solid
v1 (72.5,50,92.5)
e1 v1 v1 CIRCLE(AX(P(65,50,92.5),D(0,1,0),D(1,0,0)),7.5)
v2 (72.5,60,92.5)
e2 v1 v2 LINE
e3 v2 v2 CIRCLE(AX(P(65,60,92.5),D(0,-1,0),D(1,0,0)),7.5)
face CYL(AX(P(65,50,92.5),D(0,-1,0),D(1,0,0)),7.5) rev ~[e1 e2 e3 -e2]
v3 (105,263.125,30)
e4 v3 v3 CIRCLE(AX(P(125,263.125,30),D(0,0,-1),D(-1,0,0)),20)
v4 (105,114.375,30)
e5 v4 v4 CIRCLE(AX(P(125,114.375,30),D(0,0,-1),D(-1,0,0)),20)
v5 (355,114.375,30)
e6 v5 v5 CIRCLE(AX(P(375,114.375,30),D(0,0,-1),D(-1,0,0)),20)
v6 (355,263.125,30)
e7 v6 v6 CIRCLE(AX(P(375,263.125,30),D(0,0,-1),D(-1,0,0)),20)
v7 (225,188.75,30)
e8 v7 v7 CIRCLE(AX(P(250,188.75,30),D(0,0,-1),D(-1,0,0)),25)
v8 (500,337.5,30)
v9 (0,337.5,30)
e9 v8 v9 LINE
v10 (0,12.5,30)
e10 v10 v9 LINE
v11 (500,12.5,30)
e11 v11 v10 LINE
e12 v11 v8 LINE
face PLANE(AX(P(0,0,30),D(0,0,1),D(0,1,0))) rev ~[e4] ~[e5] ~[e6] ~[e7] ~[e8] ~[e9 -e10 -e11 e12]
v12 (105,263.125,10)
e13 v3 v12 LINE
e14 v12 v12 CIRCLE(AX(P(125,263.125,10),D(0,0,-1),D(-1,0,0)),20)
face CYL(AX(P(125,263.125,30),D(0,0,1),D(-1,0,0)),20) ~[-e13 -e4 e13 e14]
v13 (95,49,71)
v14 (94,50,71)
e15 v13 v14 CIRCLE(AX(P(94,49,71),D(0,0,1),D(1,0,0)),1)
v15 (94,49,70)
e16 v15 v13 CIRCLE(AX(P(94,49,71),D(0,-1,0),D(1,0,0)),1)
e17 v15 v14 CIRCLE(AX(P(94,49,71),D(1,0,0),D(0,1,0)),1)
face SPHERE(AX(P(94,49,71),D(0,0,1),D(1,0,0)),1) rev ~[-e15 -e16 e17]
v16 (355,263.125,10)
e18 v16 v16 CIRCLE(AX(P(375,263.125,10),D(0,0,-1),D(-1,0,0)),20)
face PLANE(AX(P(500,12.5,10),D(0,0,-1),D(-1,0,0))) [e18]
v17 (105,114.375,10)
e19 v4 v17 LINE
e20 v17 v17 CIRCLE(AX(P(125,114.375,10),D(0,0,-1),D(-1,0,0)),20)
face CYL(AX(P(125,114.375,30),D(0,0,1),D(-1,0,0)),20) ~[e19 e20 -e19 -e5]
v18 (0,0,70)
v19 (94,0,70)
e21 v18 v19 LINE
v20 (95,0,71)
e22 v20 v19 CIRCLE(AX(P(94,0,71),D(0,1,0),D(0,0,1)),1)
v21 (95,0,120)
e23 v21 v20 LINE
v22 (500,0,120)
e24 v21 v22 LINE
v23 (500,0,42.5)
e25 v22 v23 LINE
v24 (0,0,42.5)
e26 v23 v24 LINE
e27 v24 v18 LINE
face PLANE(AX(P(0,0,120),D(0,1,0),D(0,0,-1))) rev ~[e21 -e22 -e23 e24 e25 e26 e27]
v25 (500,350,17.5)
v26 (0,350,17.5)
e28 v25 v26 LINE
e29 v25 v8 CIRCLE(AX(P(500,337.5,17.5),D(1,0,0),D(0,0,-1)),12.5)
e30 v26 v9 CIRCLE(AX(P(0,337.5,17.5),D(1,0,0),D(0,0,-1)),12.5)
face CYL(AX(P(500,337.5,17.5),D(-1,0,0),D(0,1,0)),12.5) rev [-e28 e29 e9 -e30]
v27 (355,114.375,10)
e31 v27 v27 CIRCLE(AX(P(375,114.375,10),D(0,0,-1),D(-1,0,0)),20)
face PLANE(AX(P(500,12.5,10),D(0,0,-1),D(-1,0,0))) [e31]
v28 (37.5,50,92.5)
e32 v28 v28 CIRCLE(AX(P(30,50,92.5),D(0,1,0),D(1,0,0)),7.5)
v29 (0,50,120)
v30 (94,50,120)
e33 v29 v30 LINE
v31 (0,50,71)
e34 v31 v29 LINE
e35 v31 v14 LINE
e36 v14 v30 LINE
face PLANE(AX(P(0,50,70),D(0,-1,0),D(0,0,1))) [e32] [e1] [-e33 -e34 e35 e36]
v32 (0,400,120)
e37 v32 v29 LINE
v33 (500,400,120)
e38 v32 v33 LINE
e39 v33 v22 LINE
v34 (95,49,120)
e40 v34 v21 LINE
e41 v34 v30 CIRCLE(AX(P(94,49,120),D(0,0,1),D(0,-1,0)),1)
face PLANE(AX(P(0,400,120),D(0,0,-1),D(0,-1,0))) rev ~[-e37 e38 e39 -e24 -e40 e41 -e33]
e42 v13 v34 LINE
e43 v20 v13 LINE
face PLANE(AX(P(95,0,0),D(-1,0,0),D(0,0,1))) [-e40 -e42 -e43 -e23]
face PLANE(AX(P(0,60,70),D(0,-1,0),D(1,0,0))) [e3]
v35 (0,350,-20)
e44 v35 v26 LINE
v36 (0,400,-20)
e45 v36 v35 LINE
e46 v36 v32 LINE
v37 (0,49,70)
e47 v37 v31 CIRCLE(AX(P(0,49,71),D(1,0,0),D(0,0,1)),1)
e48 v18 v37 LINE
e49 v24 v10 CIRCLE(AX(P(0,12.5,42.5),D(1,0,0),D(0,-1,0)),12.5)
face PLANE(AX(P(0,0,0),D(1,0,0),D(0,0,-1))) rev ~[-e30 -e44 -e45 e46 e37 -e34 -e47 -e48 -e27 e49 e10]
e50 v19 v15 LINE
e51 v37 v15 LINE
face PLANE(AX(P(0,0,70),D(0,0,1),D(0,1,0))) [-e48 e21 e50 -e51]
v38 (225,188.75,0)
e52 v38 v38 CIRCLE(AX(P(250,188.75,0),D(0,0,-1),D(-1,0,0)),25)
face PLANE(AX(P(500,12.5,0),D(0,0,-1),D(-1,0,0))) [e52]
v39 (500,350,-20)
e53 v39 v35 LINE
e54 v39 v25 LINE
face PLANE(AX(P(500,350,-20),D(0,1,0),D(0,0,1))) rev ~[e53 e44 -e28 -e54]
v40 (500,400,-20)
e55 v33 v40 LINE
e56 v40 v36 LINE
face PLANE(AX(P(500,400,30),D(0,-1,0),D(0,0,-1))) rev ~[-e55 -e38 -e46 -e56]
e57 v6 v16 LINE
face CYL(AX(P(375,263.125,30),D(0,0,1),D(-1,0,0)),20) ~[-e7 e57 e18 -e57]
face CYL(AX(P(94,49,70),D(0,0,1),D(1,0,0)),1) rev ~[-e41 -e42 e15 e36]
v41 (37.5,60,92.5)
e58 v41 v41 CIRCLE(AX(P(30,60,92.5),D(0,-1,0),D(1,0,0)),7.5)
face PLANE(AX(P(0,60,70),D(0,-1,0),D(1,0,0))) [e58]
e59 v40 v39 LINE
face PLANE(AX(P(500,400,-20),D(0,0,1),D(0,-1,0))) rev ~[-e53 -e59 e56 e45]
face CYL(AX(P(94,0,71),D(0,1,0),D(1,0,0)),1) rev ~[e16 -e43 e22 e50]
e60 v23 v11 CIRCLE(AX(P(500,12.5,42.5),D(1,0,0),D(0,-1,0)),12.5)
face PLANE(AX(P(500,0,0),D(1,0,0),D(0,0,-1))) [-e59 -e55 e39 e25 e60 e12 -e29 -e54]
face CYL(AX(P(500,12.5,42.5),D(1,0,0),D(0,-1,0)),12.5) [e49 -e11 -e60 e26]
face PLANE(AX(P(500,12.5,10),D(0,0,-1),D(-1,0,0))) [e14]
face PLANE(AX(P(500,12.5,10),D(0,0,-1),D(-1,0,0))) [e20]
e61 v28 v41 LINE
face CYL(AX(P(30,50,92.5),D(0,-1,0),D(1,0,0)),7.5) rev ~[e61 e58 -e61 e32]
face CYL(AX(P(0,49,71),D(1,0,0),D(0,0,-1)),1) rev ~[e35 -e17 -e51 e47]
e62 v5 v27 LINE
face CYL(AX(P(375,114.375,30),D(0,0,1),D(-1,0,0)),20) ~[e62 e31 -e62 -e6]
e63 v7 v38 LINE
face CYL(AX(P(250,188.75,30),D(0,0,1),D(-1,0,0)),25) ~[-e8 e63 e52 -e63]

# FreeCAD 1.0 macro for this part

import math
import FreeCAD as App
import Part
import Sketcher
from FreeCAD import Vector
Q = App.Units.Quantity


def edges_at(feature, points):
    """Names of the edges that pass closest to the given points."""
    edges = feature.Shape.Edges
    near = lambda p: min(range(len(edges)), key=lambda i: edges[i].distToShape(Part.Vertex(*p))[0])
    return sorted({f"Edge{near(p) + 1}" for p in points})


def add_polygon(sketch, points):
    """Adds a closed chain of lines whose ends are joined by coincident constraints."""
    first, n = sketch.GeometryCount, len(points)
    for a, b in zip(points, points[1:] + points[:1]):
        sketch.addGeometry(Part.LineSegment(App.Vector(*a, 0), App.Vector(*b, 0)), False)
    for i in range(n):
        sketch.addConstraint(Sketcher.Constraint("Coincident", first + i, 2, first + (i + 1) % n, 1))

doc = App.newDocument("Part")
body = doc.addObject("PartDesign::Body", "Body")

sketch1 = body.newObject("Sketcher::SketchObject", "Sketch")
sketch1.AttachmentSupport = (doc.getObject("YZ_Plane"), [""])
sketch1.MapMode = "FlatFace"
add_polygon(sketch1, [(400, 30), (400, 120), (0, 120), (0, 30)])
sketch1.addConstraint([
    Sketcher.Constraint("Vertical", 0),
    Sketcher.Constraint("Horizontal", 1),
    Sketcher.Constraint("Vertical", 2),
    Sketcher.Constraint("Horizontal", 3),
    Sketcher.Constraint("PointOnObject", 1, 2, -2),
    Sketcher.Constraint("DistanceX", 1, 2, 1, 1, Q("400 mm")),
    Sketcher.Constraint("DistanceY", 0, 1, 0, 2, Q("90 mm")),
    Sketcher.Constraint("DistanceY", -1, 1, 0, 2, Q("120 mm")),
])
pad1 = body.newObject("PartDesign::Pad", "Pad")
pad1.Profile = sketch1
pad1.Length = 500

sketch2 = body.newObject("Sketcher::SketchObject", "Sketch001")
sketch2.AttachmentSupport = (doc.getObject("YZ_Plane"), [""])
sketch2.MapMode = "FlatFace"
sketch2.AttachmentOffset = App.Placement(Vector(0, 0, 500), App.Rotation())
sketch2.addGeometry([
    Part.ArcOfCircle(Part.Circle(Vector(12, 42, 0), Vector(0, 0, 1), 12), math.radians(180), math.radians(270)),
    Part.LineSegment(Vector(0, 42, 0), Vector(0, 30, 0)),
    Part.LineSegment(Vector(0, 30, 0), Vector(12, 30, 0)),
], False)
sketch2.addConstraint([
    Sketcher.Constraint("Tangent", 0, 1, 1, 1),
    Sketcher.Constraint("Coincident", 1, 2, 2, 1),
    Sketcher.Constraint("Tangent", 2, 2, 0, 2),
    Sketcher.Constraint("Vertical", 1),
    Sketcher.Constraint("Horizontal", 2),
    Sketcher.Constraint("PointOnObject", 0, 1, -2),
    Sketcher.Constraint("Radius", 0, Q("12.5 mm")),
    Sketcher.Constraint("DistanceY", -1, 1, 1, 2, Q("30 mm")),
])
pocket1 = body.newObject("PartDesign::Pocket", "Pocket")
pocket1.Profile = sketch2
pocket1.Length = 500

sketch3 = body.newObject("Sketcher::SketchObject", "Sketch002")
sketch3.AttachmentSupport = (doc.getObject("YZ_Plane"), [""])
sketch3.MapMode = "FlatFace"
sketch3.AttachmentOffset = App.Placement(Vector(0, 0, 500), App.Rotation())
add_polygon(sketch3, [(400, -20), (400, 30), (350, 30), (350, -20)])
sketch3.addConstraint([
    Sketcher.Constraint("Vertical", 0),
    Sketcher.Constraint("Horizontal", 1),
    Sketcher.Constraint("Vertical", 2),
    Sketcher.Constraint("Horizontal", 3),
    Sketcher.Constraint("Equal", 3, 0),
    Sketcher.Constraint("DistanceX", 1, 2, 1, 1, Q("50 mm")),
    Sketcher.Constraint("DistanceX", -1, 1, 0, 2, Q("400 mm")),
    Sketcher.Constraint("DistanceY", -1, 1, 0, 2, Q("30 mm")),
])
pad2 = body.newObject("PartDesign::Pad", "Pad001")
pad2.Profile = sketch3
pad2.Length = 500
pad2.Reversed = True
doc.recompute()

fillet = body.newObject("PartDesign::Fillet", "Fillet")
fillet.Base = (pad2, edges_at(pad2, [(250, 350, 30)]))
fillet.Radius = 12.5

sketch4 = body.newObject("Sketcher::SketchObject", "Sketch003")
sketch4.AttachmentSupport = (doc.getObject("XY_Plane"), [""])
sketch4.MapMode = "FlatFace"
sketch4.AttachmentOffset = App.Placement(Vector(0, 0, 30), App.Rotation())
sketch4.addGeometry(Part.Circle(Vector(250, 189, 0), Vector(0, 0, 1), 25), False)
sketch4.addConstraint([
    Sketcher.Constraint("Diameter", 0, Q("50 mm")),
    Sketcher.Constraint("DistanceX", -1, 1, 0, 3, Q("250 mm")),
    Sketcher.Constraint("DistanceY", -1, 1, 0, 3, Q("188.75 mm")),
])
pad3 = body.newObject("PartDesign::Pad", "Pad002")
pad3.Profile = sketch4
pad3.Length = 30
pad3.Reversed = True

sketch5 = body.newObject("Sketcher::SketchObject", "Sketch004")
sketch5.AttachmentSupport = (doc.getObject("XY_Plane"), [""])
sketch5.MapMode = "FlatFace"
sketch5.AttachmentOffset = App.Placement(Vector(0, 0, 30), App.Rotation())
sketch5.addGeometry([
    Part.Circle(Vector(375, 263, 0), Vector(0, 0, 1), 20),
    Part.Circle(Vector(125, 263, 0), Vector(0, 0, 1), 20),
    Part.Circle(Vector(125, 114, 0), Vector(0, 0, 1), 20),
    Part.Circle(Vector(375, 114, 0), Vector(0, 0, 1), 20),
], False)
sketch5.addConstraint([
    Sketcher.Constraint("Equal", 0, 1),
    Sketcher.Constraint("Equal", 1, 2),
    Sketcher.Constraint("Equal", 2, 3),
    Sketcher.Constraint("Horizontal", 0, 3, 1, 3),
    Sketcher.Constraint("Horizontal", 2, 3, 3, 3),
    Sketcher.Constraint("Vertical", 1, 3, 2, 3),
    Sketcher.Constraint("Vertical", 0, 3, 3, 3),
    Sketcher.Constraint("Diameter", 0, Q("40 mm")),
    Sketcher.Constraint("DistanceX", -1, 1, 0, 3, Q("375 mm")),
    Sketcher.Constraint("DistanceX", -1, 1, 1, 3, Q("125 mm")),
    Sketcher.Constraint("DistanceY", 2, 3, 1, 3, Q("148.75 mm")),
    Sketcher.Constraint("DistanceY", -1, 1, 0, 3, Q("263.125 mm")),
])
pad4 = body.newObject("PartDesign::Pad", "Pad003")
pad4.Profile = sketch5
pad4.Length = 20
pad4.Reversed = True

sketch6 = body.newObject("Sketcher::SketchObject", "Sketch005")
sketch6.AttachmentSupport = (doc.getObject("YZ_Plane"), [""])
sketch6.MapMode = "FlatFace"
add_polygon(sketch6, [(0, 120), (50, 120), (50, 70), (0, 70)])
sketch6.addConstraint([
    Sketcher.Constraint("Horizontal", 0),
    Sketcher.Constraint("Vertical", 1),
    Sketcher.Constraint("Horizontal", 2),
    Sketcher.Constraint("Vertical", 3),
    Sketcher.Constraint("PointOnObject", 2, 2, -2),
    Sketcher.Constraint("Equal", 2, 1),
    Sketcher.Constraint("DistanceX", 0, 1, 0, 2, Q("50 mm")),
    Sketcher.Constraint("DistanceY", -1, 1, 0, 2, Q("120 mm")),
])
pocket2 = body.newObject("PartDesign::Pocket", "Pocket001")
pocket2.Profile = sketch6
pocket2.Length = 95
pocket2.Reversed = True

sketch7 = body.newObject("Sketcher::SketchObject", "Sketch006")
sketch7.AttachmentSupport = (doc.getObject("XZ_Plane"), [""])
sketch7.MapMode = "FlatFace"
sketch7.AttachmentOffset = App.Placement(Vector(0, 0, -50), App.Rotation())
sketch7.addGeometry([
    Part.Circle(Vector(65, 92, 0), Vector(0, 0, 1), 8),
    Part.Circle(Vector(30, 92, 0), Vector(0, 0, 1), 8),
], False)
sketch7.addConstraint([
    Sketcher.Constraint("Equal", 0, 1),
    Sketcher.Constraint("Horizontal", 0, 3, 1, 3),
    Sketcher.Constraint("Diameter", 0, Q("15 mm")),
    Sketcher.Constraint("DistanceX", -1, 1, 1, 3, Q("30 mm")),
    Sketcher.Constraint("DistanceX", 1, 3, 0, 3, Q("35 mm")),
    Sketcher.Constraint("DistanceY", -1, 1, 0, 3, Q("92.5 mm")),
])
pocket3 = body.newObject("PartDesign::Pocket", "Pocket002")
pocket3.Profile = sketch7
pocket3.Length = 10
doc.recompute()

fillet2 = body.newObject("PartDesign::Fillet", "Fillet001")
fillet2.Base = (pocket3, edges_at(pocket3, [(95, 50, 95), (95, 25, 70), (47.5, 50, 70)]))
fillet2.Radius = 1

doc.recompute()
